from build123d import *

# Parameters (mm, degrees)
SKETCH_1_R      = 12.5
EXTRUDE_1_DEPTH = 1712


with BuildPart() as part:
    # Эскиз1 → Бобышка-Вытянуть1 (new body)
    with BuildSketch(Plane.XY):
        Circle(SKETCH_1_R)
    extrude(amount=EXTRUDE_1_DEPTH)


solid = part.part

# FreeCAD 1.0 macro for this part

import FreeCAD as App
import Part
import Sketcher

V = App.Vector
Q = App.Units.Quantity

doc = App.newDocument("Part")
body = doc.addObject("PartDesign::Body", "Body")

sketch1 = body.newObject("Sketcher::SketchObject", "Sketch")
sketch1.AttachmentSupport = (doc.getObject("XY_Plane"), [""])
sketch1.MapMode = "FlatFace"
sketch1.addGeometry(Part.Circle(V(0, 0, 0), V(0, 0, 1), 12), False)
sketch1.addConstraint(Sketcher.Constraint("Coincident", 0, 3, -1, 1))
sketch1.addConstraint(Sketcher.Constraint("Diameter", 0, Q("25 mm")))
pad1 = body.newObject("PartDesign::Pad", "Pad")
pad1.Profile = sketch1
pad1.Length = 1712

doc.recompute()
